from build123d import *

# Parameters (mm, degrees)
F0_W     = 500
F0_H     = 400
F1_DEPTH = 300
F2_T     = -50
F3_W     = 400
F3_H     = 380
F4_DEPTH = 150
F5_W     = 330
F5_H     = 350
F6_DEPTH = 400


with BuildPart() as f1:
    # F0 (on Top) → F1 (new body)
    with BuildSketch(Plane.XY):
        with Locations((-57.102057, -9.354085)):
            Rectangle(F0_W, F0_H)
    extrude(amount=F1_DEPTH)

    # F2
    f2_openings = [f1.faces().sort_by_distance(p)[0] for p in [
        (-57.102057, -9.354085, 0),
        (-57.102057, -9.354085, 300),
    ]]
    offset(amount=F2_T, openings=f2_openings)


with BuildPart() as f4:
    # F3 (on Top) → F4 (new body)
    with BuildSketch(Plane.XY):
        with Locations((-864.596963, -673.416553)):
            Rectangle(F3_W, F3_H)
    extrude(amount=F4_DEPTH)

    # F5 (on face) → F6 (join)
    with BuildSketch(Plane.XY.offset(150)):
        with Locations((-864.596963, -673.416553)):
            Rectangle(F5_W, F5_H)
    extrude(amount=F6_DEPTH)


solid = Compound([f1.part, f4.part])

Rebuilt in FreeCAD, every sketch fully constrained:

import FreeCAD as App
import Part
import Sketcher

V = App.Vector


def faces_at(feature, points):
    """Names of the faces that lie closest to the given points."""
    faces = feature.Shape.Faces
    near = lambda p: min(range(len(faces)), key=lambda i: faces[i].distToShape(Part.Vertex(*p))[0])
    return sorted({f"Face{near(p) + 1}" for p in points})

doc = App.newDocument("Part")
body = doc.addObject("PartDesign::Body", "Body")

# Sketch on XY plane
sketch1 = body.newObject("Sketcher::SketchObject", "Sketch")
sketch1.AttachmentSupport = (doc.getObject("XY_Plane"), [""])
sketch1.MapMode = "FlatFace"
sketch1.addGeometry(Part.LineSegment(V(-307.102057, 190.645915, 0), V(-307.102057, -209.354085, 0)), False)
sketch1.addGeometry(Part.LineSegment(V(-307.102057, -209.354085, 0), V(192.897943, -209.354085, 0)), False)
sketch1.addGeometry(Part.LineSegment(V(192.897943, -209.354085, 0), V(192.897943, 190.645915, 0)), False)
sketch1.addGeometry(Part.LineSegment(V(192.897943, 190.645915, 0), V(-307.102057, 190.645915, 0)), False)
sketch1.addConstraint(Sketcher.Constraint("Coincident", 0, 2, 1, 1))
sketch1.addConstraint(Sketcher.Constraint("Coincident", 1, 2, 2, 1))
sketch1.addConstraint(Sketcher.Constraint("Coincident", 2, 2, 3, 1))
sketch1.addConstraint(Sketcher.Constraint("Coincident", 3, 2, 0, 1))
sketch1.addConstraint(Sketcher.Constraint("Vertical", 0))
sketch1.addConstraint(Sketcher.Constraint("Horizontal", 1))
sketch1.addConstraint(Sketcher.Constraint("Vertical", 2))
sketch1.addConstraint(Sketcher.Constraint("Horizontal", 3))
sketch1.addConstraint(Sketcher.Constraint("DistanceX", 1, 1, 1, 2, 500.0))
sketch1.addConstraint(Sketcher.Constraint("DistanceY", 0, 2, 0, 1, 400.0))
sketch1.addConstraint(Sketcher.Constraint("DistanceX", 0, 2, -1, 1, 307.102057))
sketch1.addConstraint(Sketcher.Constraint("DistanceY", 0, 2, -1, 1, 209.354085))
pad1 = body.newObject("PartDesign::Pad", "Pad")
pad1.Profile = sketch1
pad1.Length = 300
doc.recompute()

thickness = body.newObject("PartDesign::Thickness", "Thickness")
thickness.Base = (pad1, faces_at(pad1, [(-57.102, -9.354, 0), (-57.102, -9.354, 300)]))
thickness.Value = 50
thickness.Reversed = True
thickness.Join = "Arc"
body2 = doc.addObject("PartDesign::Body", "Body001")

# Sketch on XY plane
sketch2 = body2.newObject("Sketcher::SketchObject", "Sketch001")
sketch2.AttachmentSupport = (doc.getObject("XY_Plane001"), [""])
sketch2.MapMode = "FlatFace"
sketch2.addGeometry(Part.LineSegment(V(-1064.596963, -483.416553, 0), V(-1064.596963, -863.416553, 0)), False)
sketch2.addGeometry(Part.LineSegment(V(-1064.596963, -863.416553, 0), V(-664.596963, -863.416553, 0)), False)
sketch2.addGeometry(Part.LineSegment(V(-664.596963, -863.416553, 0), V(-664.596963, -483.416553, 0)), False)
sketch2.addGeometry(Part.LineSegment(V(-664.596963, -483.416553, 0), V(-1064.596963, -483.416553, 0)), False)
sketch2.addConstraint(Sketcher.Constraint("Coincident", 0, 2, 1, 1))
sketch2.addConstraint(Sketcher.Constraint("Coincident", 1, 2, 2, 1))
sketch2.addConstraint(Sketcher.Constraint("Coincident", 2, 2, 3, 1))
sketch2.addConstraint(Sketcher.Constraint("Coincident", 3, 2, 0, 1))
sketch2.addConstraint(Sketcher.Constraint("Vertical", 0))
sketch2.addConstraint(Sketcher.Constraint("Horizontal", 1))
sketch2.addConstraint(Sketcher.Constraint("Vertical", 2))
sketch2.addConstraint(Sketcher.Constraint("Horizontal", 3))
sketch2.addConstraint(Sketcher.Constraint("DistanceX", 1, 1, 1, 2, 400.0))
sketch2.addConstraint(Sketcher.Constraint("DistanceY", 0, 2, 0, 1, 380.0))
sketch2.addConstraint(Sketcher.Constraint("DistanceX", 0, 2, -1, 1, 1064.596963))
sketch2.addConstraint(Sketcher.Constraint("DistanceY", 0, 2, -1, 1, 863.416553))
pad2 = body2.newObject("PartDesign::Pad", "Pad001")
pad2.Profile = sketch2
pad2.Length = 150

# Sketch on XY plane
sketch3 = body2.newObject("Sketcher::SketchObject", "Sketch002")
sketch3.AttachmentSupport = (doc.getObject("XY_Plane001"), [""])
sketch3.MapMode = "FlatFace"
sketch3.AttachmentOffset = App.Placement(V(0, 0, 150), App.Rotation())
sketch3.addGeometry(Part.LineSegment(V(-1029.596963, -498.416553, 0), V(-1029.596963, -848.416553, 0)), False)
sketch3.addGeometry(Part.LineSegment(V(-1029.596963, -848.416553, 0), V(-699.596963, -848.416553, 0)), False)
sketch3.addGeometry(Part.LineSegment(V(-699.596963, -848.416553, 0), V(-699.596963, -498.416553, 0)), False)
sketch3.addGeometry(Part.LineSegment(V(-699.596963, -498.416553, 0), V(-1029.596963, -498.416553, 0)), False)
sketch3.addConstraint(Sketcher.Constraint("Coincident", 0, 2, 1, 1))
sketch3.addConstraint(Sketcher.Constraint("Coincident", 1, 2, 2, 1))
sketch3.addConstraint(Sketcher.Constraint("Coincident", 2, 2, 3, 1))
sketch3.addConstraint(Sketcher.Constraint("Coincident", 3, 2, 0, 1))
sketch3.addConstraint(Sketcher.Constraint("Vertical", 0))
sketch3.addConstraint(Sketcher.Constraint("Horizontal", 1))
sketch3.addConstraint(Sketcher.Constraint("Vertical", 2))
sketch3.addConstraint(Sketcher.Constraint("Horizontal", 3))
sketch3.addConstraint(Sketcher.Constraint("DistanceX", 1, 1, 1, 2, 330.0))
sketch3.addConstraint(Sketcher.Constraint("DistanceY", 0, 2, 0, 1, 350.0))
sketch3.addConstraint(Sketcher.Constraint("DistanceX", 0, 2, -1, 1, 1029.596963))
sketch3.addConstraint(Sketcher.Constraint("DistanceY", 0, 2, -1, 1, 848.416553))
pad3 = body2.newObject("PartDesign::Pad", "Pad002")
pad3.Profile = sketch3
pad3.Length = 400

doc.recompute()
